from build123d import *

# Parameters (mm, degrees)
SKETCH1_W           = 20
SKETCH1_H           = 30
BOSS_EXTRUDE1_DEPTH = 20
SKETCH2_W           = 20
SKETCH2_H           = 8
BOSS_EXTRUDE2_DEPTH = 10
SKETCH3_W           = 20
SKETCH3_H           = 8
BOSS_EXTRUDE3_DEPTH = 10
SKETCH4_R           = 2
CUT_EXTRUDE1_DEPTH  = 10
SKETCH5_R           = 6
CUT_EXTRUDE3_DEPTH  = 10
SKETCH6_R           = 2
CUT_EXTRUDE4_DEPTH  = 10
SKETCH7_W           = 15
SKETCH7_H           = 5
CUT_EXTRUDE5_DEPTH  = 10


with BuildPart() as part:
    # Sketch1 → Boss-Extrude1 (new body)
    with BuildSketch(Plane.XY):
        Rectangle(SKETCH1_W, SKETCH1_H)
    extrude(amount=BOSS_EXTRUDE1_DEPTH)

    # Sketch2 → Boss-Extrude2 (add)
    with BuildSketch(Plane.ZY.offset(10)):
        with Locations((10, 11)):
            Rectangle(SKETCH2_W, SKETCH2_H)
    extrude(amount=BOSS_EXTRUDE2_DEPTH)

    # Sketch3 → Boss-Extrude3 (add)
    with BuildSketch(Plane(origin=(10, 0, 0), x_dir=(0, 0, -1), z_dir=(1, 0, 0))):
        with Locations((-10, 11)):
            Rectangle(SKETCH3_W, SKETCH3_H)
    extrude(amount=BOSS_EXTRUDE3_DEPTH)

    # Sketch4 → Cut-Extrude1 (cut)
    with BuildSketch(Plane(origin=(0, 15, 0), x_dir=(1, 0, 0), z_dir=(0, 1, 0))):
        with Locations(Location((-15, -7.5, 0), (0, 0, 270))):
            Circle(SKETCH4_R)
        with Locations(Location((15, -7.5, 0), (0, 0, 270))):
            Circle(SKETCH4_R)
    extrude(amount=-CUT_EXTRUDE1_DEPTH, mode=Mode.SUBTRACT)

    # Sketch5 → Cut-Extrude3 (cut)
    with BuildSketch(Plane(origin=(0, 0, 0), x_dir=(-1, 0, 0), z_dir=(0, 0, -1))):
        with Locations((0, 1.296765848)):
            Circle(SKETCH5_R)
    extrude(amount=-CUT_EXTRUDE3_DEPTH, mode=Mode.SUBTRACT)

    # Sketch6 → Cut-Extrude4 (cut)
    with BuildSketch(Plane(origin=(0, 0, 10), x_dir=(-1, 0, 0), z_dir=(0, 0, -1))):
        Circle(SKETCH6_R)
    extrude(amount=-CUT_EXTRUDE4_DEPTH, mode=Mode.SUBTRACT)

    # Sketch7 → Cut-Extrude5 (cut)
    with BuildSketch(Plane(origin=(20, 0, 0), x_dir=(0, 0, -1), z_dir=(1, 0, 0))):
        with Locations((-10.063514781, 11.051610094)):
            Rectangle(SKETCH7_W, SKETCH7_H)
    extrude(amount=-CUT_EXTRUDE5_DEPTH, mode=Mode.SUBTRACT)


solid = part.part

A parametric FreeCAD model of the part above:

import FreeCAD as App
import Part
import Sketcher

V = App.Vector
Q = App.Units.Quantity


def add_polygon(sketch, points):
    """Adds a closed chain of lines whose ends are joined by coincident constraints."""
    first, n = sketch.GeometryCount, len(points)
    for a, b in zip(points, points[1:] + points[:1]):
        sketch.addGeometry(Part.LineSegment(App.Vector(*a, 0), App.Vector(*b, 0)), False)
    for i in range(n):
        sketch.addConstraint(Sketcher.Constraint("Coincident", first + i, 2, first + (i + 1) % n, 1))

doc = App.newDocument("Part")
body = doc.addObject("PartDesign::Body", "Body")

sketch1 = body.newObject("Sketcher::SketchObject", "Sketch")
sketch1.AttachmentSupport = (doc.getObject("XY_Plane"), [""])
sketch1.MapMode = "FlatFace"
add_polygon(sketch1, [(-10, 15), (-10, -15), (10, -15), (10, 15)])
sketch1.addConstraint([
    Sketcher.Constraint("Vertical", 0),
    Sketcher.Constraint("Horizontal", 1),
    Sketcher.Constraint("Vertical", 2),
    Sketcher.Constraint("Horizontal", 3),
    Sketcher.Constraint("Symmetric", 0, 2, 2, 2, -1, 1),
    Sketcher.Constraint("DistanceX", 1, 1, 1, 2, Q("20 mm")),
    Sketcher.Constraint("DistanceY", 0, 2, 0, 1, Q("30 mm")),
])
pad1 = body.newObject("PartDesign::Pad", "Pad")
pad1.Profile = sketch1
pad1.Length = 20

sketch2 = body.newObject("Sketcher::SketchObject", "Sketch001")
sketch2.AttachmentSupport = (doc.getObject("YZ_Plane"), [""])
sketch2.MapMode = "FlatFace"
sketch2.AttachmentOffset = App.Placement(V(0, 0, -10), App.Rotation())
add_polygon(sketch2, [(15, 0), (7, 0), (7, 20), (15, 20)])
sketch2.addConstraint([
    Sketcher.Constraint("Horizontal", 0),
    Sketcher.Constraint("Vertical", 1),
    Sketcher.Constraint("Horizontal", 2),
    Sketcher.Constraint("Vertical", 3),
    Sketcher.Constraint("PointOnObject", 0, 2, -1),
    Sketcher.Constraint("DistanceX", 0, 2, 0, 1, Q("8 mm")),
    Sketcher.Constraint("DistanceY", 1, 1, 1, 2, Q("20 mm")),
    Sketcher.Constraint("DistanceX", -1, 1, 0, 2, Q("7 mm")),
])
pad2 = body.newObject("PartDesign::Pad", "Pad001")
pad2.Profile = sketch2
pad2.Length = 10
pad2.Reversed = True

sketch3 = body.newObject("Sketcher::SketchObject", "Sketch002")
sketch3.AttachmentSupport = (doc.getObject("YZ_Plane"), [""])
sketch3.MapMode = "FlatFace"
sketch3.AttachmentOffset = App.Placement(V(0, 0, 10), App.Rotation())
add_polygon(sketch3, [(15, 20), (7, 20), (7, 0), (15, 0)])
sketch3.addConstraint([
    Sketcher.Constraint("Horizontal", 0),
    Sketcher.Constraint("Vertical", 1),
    Sketcher.Constraint("Horizontal", 2),
    Sketcher.Constraint("Vertical", 3),
    Sketcher.Constraint("PointOnObject", 1, 2, -1),
    Sketcher.Constraint("DistanceX", 0, 2, 0, 1, Q("8 mm")),
    Sketcher.Constraint("DistanceY", 1, 2, 1, 1, Q("20 mm")),
    Sketcher.Constraint("DistanceX", -1, 1, 0, 2, Q("7 mm")),
])
pad3 = body.newObject("PartDesign::Pad", "Pad002")
pad3.Profile = sketch3
pad3.Length = 10

sketch4 = body.newObject("Sketcher::SketchObject", "Sketch003")
sketch4.AttachmentSupport = (doc.getObject("XZ_Plane"), [""])
sketch4.MapMode = "FlatFace"
sketch4.AttachmentOffset = App.Placement(V(0, 0, -15), App.Rotation())
sketch4.addGeometry([
    Part.Circle(V(-15, 7.5, 0), V(0, 0, 1), 2),
    Part.Circle(V(15, 7.5, 0), V(0, 0, 1), 2),
], False)
sketch4.addConstraint([
    Sketcher.Constraint("Equal", 0, 1),
    Sketcher.Constraint("Symmetric", 0, 3, 1, 3, -2),
    Sketcher.Constraint("Diameter", 0, Q("4 mm")),
    Sketcher.Constraint("DistanceX", 0, 3, -1, 1, Q("15 mm")),
    Sketcher.Constraint("DistanceY", -1, 1, 0, 3, Q("7.5 mm")),
])
pocket1 = body.newObject("PartDesign::Pocket", "Pocket")
pocket1.Profile = sketch4
pocket1.Length = 10
pocket1.Reversed = True

sketch5 = body.newObject("Sketcher::SketchObject", "Sketch004")
sketch5.AttachmentSupport = (doc.getObject("XY_Plane"), [""])
sketch5.MapMode = "FlatFace"
sketch5.addGeometry(Part.Circle(V(0, 1.296766, 0), V(0, 0, 1), 6), False)
sketch5.addConstraint([
    Sketcher.Constraint("PointOnObject", 0, 3, -2),
    Sketcher.Constraint("Diameter", 0, Q("12 mm")),
    Sketcher.Constraint("DistanceY", -1, 1, 0, 3, Q("1.296766 mm")),
])
pocket2 = body.newObject("PartDesign::Pocket", "Pocket001")
pocket2.Profile = sketch5
pocket2.Length = 10
pocket2.Reversed = True

sketch6 = body.newObject("Sketcher::SketchObject", "Sketch005")
sketch6.AttachmentSupport = (doc.getObject("XY_Plane"), [""])
sketch6.MapMode = "FlatFace"
sketch6.AttachmentOffset = App.Placement(V(0, 0, 10), App.Rotation())
sketch6.addGeometry(Part.Circle(V(0, 0, 0), V(0, 0, 1), 2), False)
sketch6.addConstraint([
    Sketcher.Constraint("Coincident", 0, 3, -1, 1),
    Sketcher.Constraint("Diameter", 0, Q("4 mm")),
])
pocket3 = body.newObject("PartDesign::Pocket", "Pocket002")
pocket3.Profile = sketch6
pocket3.Length = 10
pocket3.Reversed = True

sketch7 = body.newObject("Sketcher::SketchObject", "Sketch006")
sketch7.AttachmentSupport = (doc.getObject("YZ_Plane"), [""])
sketch7.MapMode = "FlatFace"
sketch7.AttachmentOffset = App.Placement(V(0, 0, 20), App.Rotation())
add_polygon(sketch7, [(13.55161, 17.563515), (8.55161, 17.563515), (8.55161, 2.563515), (13.55161, 2.563515)])
sketch7.addConstraint([
    Sketcher.Constraint("Horizontal", 0),
    Sketcher.Constraint("Vertical", 1),
    Sketcher.Constraint("Horizontal", 2),
    Sketcher.Constraint("Vertical", 3),
    Sketcher.Constraint("DistanceX", 0, 2, 0, 1, Q("5 mm")),
    Sketcher.Constraint("DistanceY", 1, 2, 1, 1, Q("15 mm")),
    Sketcher.Constraint("DistanceX", -1, 1, 0, 2, Q("8.55161 mm")),
    Sketcher.Constraint("DistanceY", -1, 1, 0, 2, Q("17.563515 mm")),
])
pocket4 = body.newObject("PartDesign::Pocket", "Pocket003")
pocket4.Profile = sketch7
pocket4.Length = 10

doc.recompute()
